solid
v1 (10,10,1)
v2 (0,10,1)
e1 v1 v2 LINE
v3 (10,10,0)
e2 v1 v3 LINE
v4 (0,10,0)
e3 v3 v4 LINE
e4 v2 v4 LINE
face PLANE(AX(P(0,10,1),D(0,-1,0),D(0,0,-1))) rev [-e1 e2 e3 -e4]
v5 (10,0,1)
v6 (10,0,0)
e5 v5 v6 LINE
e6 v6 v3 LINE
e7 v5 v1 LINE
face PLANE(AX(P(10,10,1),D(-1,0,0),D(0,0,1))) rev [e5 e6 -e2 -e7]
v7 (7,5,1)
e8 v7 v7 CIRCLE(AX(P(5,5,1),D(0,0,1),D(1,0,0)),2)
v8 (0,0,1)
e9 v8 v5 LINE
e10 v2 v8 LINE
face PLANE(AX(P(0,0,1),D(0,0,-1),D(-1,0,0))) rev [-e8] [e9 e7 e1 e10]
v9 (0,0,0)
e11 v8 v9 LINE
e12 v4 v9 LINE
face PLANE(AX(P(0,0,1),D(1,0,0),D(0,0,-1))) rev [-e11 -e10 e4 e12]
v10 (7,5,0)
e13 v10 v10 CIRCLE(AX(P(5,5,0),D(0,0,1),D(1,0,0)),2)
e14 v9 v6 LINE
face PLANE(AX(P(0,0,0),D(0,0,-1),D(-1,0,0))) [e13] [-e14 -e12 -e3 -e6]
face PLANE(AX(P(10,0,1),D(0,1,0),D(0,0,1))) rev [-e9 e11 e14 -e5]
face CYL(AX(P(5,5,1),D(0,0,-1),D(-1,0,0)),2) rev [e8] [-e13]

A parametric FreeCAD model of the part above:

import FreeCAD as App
import Part
import Sketcher
from FreeCAD import Vector
Q = App.Units.Quantity


def add_polygon(sketch, points):
    """Adds a closed chain of lines whose ends are joined by coincident constraints."""
    first, n = sketch.GeometryCount, len(points)
    for a, b in zip(points, points[1:] + points[:1]):
        sketch.addGeometry(Part.LineSegment(App.Vector(*a, 0), App.Vector(*b, 0)), False)
    for i in range(n):
        sketch.addConstraint(Sketcher.Constraint("Coincident", first + i, 2, first + (i + 1) % n, 1))

doc = App.newDocument("Part")
params = doc.addObject("Spreadsheet::Sheet", "Params")
for row, (alias, value) in enumerate([
    ("sketch1_diameter", "4 mm"),
    ("sketch1_width", "10 mm"),
    ("pad1_length", "1 mm"),
], start=1):
    params.set(f"A{row}", alias)
    params.set(f"B{row}", "=" + value)
    params.setAlias(f"B{row}", alias)

body = doc.addObject("PartDesign::Body", "Body")

# Sketch on XY plane
sketch1 = body.newObject("Sketcher::SketchObject", "Sketch")
sketch1.AttachmentSupport = (doc.getObject("XY_Plane"), [""])
sketch1.MapMode = "FlatFace"
add_polygon(sketch1, [(0, 10), (0, 0), (10, 0), (10, 10)])  # lines 0-3
sketch1.addGeometry(Part.Circle(Vector(5, 5, 0), Vector(0, 0, 1), 2), False)  # 4
sketch1.addConstraint([
    Sketcher.Constraint("Vertical", 0),
    Sketcher.Constraint("Horizontal", 1),
    Sketcher.Constraint("Vertical", 2),
    Sketcher.Constraint("Horizontal", 3),
    Sketcher.Constraint("Coincident", 0, 2, -1, 1),
    Sketcher.Constraint("Equal", 3, 0),
    Sketcher.Constraint("Diameter", 4, Q("4 mm")),
    Sketcher.Constraint("DistanceX", 1, 1, 1, 2, Q("10 mm")),
    Sketcher.Constraint("DistanceX", -1, 1, 4, 3, Q("5 mm")),
    Sketcher.Constraint("DistanceY", -1, 1, 4, 3, Q("5 mm")),
])
sketch1.setExpression("Constraints[10]", "Params.sketch1_diameter")
sketch1.setExpression("Constraints[11]", "Params.sketch1_width")
pad1 = body.newObject("PartDesign::Pad", "Pad")
pad1.Profile = sketch1
pad1.setExpression("Length", "Params.pad1_length")

doc.recompute()
